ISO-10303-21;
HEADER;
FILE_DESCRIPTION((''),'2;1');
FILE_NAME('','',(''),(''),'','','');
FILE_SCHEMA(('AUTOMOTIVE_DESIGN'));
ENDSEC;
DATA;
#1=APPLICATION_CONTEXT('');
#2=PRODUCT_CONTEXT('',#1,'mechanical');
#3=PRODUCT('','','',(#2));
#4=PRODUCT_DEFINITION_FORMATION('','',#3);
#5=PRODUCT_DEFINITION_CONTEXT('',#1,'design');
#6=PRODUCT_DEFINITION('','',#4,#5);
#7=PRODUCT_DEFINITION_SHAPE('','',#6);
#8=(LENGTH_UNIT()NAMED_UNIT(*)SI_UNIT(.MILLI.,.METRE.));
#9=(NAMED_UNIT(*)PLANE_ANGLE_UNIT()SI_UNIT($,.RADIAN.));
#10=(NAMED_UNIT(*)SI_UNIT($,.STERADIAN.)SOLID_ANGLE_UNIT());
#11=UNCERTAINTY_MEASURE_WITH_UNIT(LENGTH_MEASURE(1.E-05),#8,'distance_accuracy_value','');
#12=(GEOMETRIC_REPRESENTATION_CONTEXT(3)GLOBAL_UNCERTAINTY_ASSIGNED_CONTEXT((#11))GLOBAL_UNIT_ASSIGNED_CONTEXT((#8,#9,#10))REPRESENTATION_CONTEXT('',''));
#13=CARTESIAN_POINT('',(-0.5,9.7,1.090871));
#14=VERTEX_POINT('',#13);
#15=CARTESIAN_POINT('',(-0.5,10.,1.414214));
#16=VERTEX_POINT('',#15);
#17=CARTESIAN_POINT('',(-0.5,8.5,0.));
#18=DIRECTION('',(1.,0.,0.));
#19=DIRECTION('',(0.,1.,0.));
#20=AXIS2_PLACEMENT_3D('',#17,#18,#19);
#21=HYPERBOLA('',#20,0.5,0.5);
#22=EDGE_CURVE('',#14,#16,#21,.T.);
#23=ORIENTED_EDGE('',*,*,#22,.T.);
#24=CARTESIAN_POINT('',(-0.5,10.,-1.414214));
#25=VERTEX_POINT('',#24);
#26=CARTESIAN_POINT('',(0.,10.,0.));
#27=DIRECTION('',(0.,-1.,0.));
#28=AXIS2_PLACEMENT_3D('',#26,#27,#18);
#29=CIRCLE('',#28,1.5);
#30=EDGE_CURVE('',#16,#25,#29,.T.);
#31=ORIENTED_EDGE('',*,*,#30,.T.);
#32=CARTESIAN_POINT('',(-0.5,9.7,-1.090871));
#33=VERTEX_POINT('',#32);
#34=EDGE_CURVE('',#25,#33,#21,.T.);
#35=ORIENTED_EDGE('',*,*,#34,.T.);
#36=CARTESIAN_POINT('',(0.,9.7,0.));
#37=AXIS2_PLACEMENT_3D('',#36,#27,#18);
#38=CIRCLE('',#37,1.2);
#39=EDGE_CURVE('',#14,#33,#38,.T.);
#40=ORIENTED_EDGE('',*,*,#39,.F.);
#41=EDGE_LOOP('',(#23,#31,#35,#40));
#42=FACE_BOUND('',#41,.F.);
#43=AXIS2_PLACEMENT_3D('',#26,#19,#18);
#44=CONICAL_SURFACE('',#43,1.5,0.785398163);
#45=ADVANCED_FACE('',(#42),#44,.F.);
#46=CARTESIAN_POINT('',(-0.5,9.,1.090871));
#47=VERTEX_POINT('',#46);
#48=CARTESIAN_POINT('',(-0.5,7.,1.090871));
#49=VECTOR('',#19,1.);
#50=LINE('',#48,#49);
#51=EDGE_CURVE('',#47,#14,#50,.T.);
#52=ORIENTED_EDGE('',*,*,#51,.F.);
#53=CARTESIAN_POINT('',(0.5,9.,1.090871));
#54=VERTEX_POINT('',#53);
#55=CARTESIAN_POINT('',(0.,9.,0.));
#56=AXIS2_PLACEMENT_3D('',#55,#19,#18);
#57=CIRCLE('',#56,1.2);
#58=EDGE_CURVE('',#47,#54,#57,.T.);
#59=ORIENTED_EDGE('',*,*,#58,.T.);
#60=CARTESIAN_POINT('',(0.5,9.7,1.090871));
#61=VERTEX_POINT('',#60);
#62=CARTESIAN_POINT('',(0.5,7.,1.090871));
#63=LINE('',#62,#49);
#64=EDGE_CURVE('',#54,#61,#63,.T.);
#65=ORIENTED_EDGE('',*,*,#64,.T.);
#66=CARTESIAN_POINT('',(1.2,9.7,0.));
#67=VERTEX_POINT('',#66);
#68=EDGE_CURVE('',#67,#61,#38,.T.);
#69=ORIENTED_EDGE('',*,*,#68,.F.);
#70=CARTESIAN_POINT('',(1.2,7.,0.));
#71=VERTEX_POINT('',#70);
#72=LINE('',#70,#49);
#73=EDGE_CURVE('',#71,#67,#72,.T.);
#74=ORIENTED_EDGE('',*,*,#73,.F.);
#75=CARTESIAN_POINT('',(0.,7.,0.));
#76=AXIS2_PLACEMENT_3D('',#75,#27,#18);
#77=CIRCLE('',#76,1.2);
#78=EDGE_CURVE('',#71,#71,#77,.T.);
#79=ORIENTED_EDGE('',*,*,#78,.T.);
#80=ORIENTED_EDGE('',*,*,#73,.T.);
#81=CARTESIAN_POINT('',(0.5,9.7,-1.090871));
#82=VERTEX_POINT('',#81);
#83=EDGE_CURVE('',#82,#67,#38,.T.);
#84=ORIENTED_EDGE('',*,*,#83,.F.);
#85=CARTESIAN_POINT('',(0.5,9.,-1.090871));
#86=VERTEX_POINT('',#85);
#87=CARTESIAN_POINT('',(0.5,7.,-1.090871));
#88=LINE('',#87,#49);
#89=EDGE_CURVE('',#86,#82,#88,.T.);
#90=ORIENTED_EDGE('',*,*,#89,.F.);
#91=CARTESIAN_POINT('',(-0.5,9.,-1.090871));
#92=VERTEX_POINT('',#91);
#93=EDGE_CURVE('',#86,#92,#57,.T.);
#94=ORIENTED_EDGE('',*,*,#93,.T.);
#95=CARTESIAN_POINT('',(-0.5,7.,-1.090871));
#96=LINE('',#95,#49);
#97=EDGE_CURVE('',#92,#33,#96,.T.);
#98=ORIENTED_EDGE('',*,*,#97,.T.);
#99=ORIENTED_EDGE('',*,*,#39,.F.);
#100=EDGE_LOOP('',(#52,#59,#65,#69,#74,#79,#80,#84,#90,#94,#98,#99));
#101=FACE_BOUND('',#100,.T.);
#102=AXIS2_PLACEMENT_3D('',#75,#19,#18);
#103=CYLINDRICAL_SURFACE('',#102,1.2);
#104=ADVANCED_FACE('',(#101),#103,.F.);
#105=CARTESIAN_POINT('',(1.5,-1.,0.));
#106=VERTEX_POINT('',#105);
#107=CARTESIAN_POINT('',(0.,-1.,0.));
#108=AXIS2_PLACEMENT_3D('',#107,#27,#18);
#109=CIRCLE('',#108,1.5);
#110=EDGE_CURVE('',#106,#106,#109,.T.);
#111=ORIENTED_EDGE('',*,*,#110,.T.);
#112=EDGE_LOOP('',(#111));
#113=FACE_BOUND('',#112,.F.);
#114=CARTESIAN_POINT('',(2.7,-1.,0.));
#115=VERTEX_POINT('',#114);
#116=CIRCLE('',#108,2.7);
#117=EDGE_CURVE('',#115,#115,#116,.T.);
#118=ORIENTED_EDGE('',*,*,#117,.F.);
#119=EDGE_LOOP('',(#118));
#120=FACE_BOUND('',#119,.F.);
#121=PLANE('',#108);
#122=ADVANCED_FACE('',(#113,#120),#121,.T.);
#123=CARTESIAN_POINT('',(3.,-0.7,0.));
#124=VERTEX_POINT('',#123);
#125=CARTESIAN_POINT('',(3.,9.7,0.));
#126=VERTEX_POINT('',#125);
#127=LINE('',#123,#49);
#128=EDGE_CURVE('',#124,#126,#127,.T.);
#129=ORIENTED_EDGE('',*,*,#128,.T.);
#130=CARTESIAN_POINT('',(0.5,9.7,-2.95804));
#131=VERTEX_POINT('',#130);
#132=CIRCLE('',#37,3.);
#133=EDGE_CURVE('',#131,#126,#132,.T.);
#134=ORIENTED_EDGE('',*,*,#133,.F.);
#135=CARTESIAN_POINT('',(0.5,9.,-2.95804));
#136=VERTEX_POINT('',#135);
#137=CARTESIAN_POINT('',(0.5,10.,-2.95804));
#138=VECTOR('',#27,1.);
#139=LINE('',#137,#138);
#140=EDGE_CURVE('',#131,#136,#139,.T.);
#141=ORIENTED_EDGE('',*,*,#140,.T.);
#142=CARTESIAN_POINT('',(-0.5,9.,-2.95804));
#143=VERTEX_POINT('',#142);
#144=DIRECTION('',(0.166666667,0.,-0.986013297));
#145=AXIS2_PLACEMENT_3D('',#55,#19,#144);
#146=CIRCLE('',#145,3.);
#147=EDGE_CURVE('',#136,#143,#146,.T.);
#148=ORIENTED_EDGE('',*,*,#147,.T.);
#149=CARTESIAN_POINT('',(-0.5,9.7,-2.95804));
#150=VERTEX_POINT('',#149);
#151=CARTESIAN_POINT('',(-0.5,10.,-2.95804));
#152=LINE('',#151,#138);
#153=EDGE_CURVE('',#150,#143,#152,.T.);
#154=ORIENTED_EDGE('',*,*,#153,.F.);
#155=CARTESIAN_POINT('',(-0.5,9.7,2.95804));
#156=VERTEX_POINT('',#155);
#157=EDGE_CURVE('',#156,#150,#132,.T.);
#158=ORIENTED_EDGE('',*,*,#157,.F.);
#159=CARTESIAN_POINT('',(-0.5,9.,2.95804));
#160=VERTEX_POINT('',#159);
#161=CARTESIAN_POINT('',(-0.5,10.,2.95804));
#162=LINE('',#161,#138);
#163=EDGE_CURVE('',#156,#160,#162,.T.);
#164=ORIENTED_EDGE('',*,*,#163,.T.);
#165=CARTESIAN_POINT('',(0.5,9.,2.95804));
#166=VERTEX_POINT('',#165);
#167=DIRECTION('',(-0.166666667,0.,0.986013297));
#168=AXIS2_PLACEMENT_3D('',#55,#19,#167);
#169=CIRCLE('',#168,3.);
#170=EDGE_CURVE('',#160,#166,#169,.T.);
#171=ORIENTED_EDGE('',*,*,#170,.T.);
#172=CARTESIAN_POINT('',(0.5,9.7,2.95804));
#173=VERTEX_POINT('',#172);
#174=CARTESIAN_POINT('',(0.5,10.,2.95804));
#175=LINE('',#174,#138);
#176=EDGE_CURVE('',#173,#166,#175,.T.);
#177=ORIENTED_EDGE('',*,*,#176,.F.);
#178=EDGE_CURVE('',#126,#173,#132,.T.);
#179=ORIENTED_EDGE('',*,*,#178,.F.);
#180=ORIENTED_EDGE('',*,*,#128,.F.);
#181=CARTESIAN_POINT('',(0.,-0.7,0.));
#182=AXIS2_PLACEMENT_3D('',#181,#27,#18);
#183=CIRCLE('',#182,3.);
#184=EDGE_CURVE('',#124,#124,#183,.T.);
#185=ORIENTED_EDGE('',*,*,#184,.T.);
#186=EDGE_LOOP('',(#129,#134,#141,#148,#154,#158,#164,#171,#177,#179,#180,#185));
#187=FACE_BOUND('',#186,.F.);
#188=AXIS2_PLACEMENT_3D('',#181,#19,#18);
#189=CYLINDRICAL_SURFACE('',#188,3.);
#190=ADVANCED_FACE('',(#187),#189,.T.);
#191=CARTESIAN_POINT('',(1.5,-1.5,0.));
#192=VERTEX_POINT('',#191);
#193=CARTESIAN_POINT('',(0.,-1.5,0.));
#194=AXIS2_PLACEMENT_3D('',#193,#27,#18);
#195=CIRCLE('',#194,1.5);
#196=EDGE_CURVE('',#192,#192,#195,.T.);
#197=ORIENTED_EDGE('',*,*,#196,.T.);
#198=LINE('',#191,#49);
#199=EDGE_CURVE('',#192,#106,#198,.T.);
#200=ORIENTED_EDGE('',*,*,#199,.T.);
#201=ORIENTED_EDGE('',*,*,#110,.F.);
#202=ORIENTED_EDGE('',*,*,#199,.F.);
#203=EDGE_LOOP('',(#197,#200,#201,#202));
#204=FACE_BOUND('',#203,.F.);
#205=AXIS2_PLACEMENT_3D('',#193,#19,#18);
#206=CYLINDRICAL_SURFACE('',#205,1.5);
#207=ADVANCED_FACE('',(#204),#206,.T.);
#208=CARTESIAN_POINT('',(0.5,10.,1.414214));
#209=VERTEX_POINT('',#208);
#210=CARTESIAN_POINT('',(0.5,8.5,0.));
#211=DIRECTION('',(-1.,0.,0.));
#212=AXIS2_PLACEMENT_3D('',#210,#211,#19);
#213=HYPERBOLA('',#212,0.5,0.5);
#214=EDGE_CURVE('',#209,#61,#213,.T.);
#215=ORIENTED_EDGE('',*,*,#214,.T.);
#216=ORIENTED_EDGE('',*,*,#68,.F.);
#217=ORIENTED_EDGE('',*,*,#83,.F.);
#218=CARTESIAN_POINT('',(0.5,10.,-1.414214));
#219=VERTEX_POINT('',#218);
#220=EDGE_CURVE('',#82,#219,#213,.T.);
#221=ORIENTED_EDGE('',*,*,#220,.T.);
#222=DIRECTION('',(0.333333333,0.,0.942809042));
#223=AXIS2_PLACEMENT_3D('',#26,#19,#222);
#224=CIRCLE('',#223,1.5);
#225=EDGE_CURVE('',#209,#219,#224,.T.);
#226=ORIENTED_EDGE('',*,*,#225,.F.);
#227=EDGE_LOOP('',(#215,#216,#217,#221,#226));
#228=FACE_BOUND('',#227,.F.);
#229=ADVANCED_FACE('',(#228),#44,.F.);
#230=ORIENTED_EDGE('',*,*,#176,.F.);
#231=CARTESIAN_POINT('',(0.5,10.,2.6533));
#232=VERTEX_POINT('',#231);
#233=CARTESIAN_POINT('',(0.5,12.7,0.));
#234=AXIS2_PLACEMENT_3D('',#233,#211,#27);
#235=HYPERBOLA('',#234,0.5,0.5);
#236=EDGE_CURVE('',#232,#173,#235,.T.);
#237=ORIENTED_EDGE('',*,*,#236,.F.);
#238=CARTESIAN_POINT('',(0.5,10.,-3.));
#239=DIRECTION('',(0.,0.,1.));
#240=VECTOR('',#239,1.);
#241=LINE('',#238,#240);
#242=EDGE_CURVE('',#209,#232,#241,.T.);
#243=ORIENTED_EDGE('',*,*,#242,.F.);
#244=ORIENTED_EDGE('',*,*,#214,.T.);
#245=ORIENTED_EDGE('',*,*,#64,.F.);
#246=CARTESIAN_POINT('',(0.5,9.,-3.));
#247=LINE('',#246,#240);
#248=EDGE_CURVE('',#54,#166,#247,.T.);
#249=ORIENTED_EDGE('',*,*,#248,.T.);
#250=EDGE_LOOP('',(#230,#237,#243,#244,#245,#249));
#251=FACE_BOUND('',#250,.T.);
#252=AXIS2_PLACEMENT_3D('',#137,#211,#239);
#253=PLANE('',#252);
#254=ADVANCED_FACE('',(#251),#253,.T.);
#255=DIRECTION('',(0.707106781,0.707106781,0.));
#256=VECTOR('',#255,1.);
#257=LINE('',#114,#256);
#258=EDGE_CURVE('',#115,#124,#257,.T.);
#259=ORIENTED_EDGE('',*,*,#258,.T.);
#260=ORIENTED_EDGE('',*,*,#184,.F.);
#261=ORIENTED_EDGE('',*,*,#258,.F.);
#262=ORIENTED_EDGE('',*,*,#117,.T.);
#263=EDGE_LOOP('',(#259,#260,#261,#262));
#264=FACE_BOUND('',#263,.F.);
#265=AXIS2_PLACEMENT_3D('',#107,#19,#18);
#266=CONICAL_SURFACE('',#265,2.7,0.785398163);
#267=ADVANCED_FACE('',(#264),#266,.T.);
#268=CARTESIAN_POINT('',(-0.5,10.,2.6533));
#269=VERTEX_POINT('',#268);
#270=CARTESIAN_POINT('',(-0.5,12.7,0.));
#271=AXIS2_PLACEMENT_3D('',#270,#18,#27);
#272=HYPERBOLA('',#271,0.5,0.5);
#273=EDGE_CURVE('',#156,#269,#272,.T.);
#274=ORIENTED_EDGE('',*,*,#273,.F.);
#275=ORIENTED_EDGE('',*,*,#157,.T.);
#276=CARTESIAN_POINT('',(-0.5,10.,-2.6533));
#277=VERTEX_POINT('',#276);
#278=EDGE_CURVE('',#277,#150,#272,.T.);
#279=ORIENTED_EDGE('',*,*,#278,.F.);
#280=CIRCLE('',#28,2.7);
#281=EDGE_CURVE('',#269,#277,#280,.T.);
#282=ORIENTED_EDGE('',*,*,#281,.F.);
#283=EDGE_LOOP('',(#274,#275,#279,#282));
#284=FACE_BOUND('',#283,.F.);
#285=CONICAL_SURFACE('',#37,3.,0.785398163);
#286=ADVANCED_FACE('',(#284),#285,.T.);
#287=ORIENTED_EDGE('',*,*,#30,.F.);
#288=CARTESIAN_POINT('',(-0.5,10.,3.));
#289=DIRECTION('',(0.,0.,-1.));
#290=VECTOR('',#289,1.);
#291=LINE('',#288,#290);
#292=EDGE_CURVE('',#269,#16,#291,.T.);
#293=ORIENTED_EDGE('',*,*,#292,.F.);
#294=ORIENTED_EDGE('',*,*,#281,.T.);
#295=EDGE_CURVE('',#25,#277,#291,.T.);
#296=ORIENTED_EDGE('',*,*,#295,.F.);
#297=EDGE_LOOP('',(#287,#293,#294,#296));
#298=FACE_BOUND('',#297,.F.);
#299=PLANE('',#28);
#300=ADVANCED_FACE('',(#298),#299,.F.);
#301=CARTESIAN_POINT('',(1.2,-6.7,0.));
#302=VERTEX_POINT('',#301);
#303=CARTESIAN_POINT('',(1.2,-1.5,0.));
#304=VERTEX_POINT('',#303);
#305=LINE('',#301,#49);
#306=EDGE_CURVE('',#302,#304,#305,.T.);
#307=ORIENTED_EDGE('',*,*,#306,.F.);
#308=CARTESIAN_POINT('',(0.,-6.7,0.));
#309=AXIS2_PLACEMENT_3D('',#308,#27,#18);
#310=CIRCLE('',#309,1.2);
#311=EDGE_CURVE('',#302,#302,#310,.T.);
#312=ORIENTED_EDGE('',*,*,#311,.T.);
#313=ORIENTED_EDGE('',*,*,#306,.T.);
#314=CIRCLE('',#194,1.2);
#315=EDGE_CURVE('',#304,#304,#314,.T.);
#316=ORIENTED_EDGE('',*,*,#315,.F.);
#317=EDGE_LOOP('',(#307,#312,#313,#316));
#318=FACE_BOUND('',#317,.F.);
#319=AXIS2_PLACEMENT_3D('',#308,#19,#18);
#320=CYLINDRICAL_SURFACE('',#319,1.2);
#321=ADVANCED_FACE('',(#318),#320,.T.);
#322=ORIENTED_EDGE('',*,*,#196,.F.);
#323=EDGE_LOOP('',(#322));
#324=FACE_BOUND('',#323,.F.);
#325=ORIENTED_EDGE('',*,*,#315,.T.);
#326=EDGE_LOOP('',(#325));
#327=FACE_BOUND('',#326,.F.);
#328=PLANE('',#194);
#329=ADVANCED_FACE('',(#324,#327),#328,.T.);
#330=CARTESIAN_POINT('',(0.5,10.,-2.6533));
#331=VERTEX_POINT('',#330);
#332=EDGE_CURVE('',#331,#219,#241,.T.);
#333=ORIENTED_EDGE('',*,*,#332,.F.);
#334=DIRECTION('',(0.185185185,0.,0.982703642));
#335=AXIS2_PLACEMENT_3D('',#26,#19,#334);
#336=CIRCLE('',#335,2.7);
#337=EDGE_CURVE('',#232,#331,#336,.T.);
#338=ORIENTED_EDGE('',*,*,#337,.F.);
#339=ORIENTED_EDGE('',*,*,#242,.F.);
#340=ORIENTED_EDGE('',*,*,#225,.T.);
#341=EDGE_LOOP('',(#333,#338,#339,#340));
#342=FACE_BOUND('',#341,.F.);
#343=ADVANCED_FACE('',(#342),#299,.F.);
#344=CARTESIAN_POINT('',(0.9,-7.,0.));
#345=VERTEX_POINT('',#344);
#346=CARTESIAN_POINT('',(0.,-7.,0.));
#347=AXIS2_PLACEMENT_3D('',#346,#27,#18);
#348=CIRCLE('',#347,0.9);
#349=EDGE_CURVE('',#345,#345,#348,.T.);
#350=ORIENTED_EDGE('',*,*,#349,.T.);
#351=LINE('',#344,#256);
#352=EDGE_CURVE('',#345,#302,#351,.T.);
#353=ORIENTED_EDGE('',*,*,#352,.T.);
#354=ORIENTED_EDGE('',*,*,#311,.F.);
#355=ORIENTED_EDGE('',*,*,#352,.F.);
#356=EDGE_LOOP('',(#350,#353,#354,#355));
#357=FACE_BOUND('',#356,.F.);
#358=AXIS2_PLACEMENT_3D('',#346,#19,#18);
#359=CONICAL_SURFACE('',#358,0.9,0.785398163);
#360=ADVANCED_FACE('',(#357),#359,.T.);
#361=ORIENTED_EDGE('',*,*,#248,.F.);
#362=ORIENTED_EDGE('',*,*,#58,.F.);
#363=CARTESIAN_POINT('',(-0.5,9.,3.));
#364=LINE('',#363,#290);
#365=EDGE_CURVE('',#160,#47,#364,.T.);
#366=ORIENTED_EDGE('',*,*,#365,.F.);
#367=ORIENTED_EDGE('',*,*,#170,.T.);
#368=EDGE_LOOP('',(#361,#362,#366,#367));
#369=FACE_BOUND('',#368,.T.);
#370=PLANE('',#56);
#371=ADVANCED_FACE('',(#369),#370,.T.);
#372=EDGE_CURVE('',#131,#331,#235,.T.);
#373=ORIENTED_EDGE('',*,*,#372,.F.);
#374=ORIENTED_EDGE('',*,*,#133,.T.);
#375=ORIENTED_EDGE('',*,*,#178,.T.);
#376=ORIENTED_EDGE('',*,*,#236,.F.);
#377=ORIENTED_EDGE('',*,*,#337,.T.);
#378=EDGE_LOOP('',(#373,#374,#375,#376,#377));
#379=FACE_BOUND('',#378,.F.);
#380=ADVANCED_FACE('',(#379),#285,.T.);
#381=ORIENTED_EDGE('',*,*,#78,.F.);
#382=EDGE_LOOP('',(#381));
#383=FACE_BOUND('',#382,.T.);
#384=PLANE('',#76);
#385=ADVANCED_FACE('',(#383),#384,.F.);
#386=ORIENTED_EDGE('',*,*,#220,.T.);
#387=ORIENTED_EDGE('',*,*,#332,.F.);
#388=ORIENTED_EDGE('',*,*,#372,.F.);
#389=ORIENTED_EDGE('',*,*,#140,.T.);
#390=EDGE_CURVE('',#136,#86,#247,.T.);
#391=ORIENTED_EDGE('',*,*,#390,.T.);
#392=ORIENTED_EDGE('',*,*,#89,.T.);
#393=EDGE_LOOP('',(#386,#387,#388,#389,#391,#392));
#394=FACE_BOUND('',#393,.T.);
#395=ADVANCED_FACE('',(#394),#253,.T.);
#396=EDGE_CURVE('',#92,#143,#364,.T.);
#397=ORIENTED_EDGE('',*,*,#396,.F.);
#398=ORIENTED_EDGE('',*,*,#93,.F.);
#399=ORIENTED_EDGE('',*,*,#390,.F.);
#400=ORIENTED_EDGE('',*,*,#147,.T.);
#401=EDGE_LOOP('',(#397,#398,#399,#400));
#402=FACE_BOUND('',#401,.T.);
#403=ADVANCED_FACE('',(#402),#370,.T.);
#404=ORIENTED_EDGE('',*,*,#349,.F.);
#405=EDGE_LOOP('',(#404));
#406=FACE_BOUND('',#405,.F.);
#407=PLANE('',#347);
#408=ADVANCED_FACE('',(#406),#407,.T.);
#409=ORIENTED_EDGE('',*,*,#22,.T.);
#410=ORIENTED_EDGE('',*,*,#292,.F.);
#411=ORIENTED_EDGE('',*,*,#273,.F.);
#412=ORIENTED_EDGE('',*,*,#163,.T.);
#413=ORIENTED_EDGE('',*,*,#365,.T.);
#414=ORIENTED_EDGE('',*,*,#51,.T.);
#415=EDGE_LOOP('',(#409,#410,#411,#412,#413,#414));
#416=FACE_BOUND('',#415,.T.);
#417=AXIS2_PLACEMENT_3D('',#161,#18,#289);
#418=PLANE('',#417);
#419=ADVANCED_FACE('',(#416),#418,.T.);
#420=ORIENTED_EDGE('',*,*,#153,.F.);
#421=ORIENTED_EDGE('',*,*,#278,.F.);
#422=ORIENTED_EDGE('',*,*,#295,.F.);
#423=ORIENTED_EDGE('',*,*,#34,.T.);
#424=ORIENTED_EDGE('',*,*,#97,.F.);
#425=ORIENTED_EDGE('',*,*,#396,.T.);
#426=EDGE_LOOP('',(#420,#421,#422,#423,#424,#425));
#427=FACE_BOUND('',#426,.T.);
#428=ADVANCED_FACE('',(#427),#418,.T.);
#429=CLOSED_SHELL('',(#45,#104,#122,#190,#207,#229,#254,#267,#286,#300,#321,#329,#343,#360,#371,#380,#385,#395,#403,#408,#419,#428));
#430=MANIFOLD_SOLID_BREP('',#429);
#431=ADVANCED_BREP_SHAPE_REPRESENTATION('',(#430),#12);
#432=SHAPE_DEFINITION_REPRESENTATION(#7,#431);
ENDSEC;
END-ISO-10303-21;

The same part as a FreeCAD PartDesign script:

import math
import FreeCAD as App
import Part
import Sketcher
from FreeCAD import Vector
Q = App.Units.Quantity


def add_polygon(sketch, points):
    """Adds a closed chain of lines whose ends are joined by coincident constraints."""
    first, n = sketch.GeometryCount, len(points)
    for a, b in zip(points, points[1:] + points[:1]):
        sketch.addGeometry(Part.LineSegment(App.Vector(*a, 0), App.Vector(*b, 0)), False)
    for i in range(n):
        sketch.addConstraint(Sketcher.Constraint("Coincident", first + i, 2, first + (i + 1) % n, 1))

doc = App.newDocument("Part")
body = doc.addObject("PartDesign::Body", "Body")

# Sketch on XY plane
sketch1 = doc.addObject("Sketcher::SketchObject", "Sketch")
body.addObject(sketch1)
sketch1.AttachmentSupport = (doc.XY_Plane, [""])
sketch1.MapMode = "FlatFace"
add_polygon(sketch1, [(0, 7), (0, -7), (0.9, -7), (1.2, -6.7), (1.2, -1.5), (1.5, -1.5), (1.5, -1), (2.7, -1), (3, -0.7), (3, 9.7), (2.7, 10), (1.5, 10), (1.2, 9.7), (1.2, 7)])  # lines 0-13
sketch1.addConstraint([
    Sketcher.Constraint("Vertical", 0),
    Sketcher.Constraint("Horizontal", 1),
    Sketcher.Constraint("Vertical", 3),
    Sketcher.Constraint("Horizontal", 4),
    Sketcher.Constraint("Vertical", 5),
    Sketcher.Constraint("Horizontal", 6),
    Sketcher.Constraint("Vertical", 8),
    Sketcher.Constraint("Horizontal", 10),
    Sketcher.Constraint("Vertical", 12),
    Sketcher.Constraint("Horizontal", 13),
    Sketcher.Constraint("Symmetric", 0, 2, 13, 2, -1, 1),
    Sketcher.Constraint("Parallel", 2, 7),
    Sketcher.Constraint("Perpendicular", 7, 9),
    Sketcher.Constraint("Perpendicular", 9, 11),
    Sketcher.Constraint("Horizontal", 8, 2, 11, 2),
    Sketcher.Constraint("Vertical", 6, 2, 9, 2),
    Sketcher.Constraint("Vertical", 5, 2, 10, 2),
    Sketcher.Constraint("Vertical", 3, 2, 11, 2),
    Sketcher.Constraint("Equal", 10, 13),
    Sketcher.Constraint("Equal", 2, 7),
    Sketcher.Constraint("Equal", 7, 9),
    Sketcher.Constraint("DistanceX", 4, 1, 4, 2, Q("0.3 mm")),
    Sketcher.Constraint("DistanceY", 5, 1, 5, 2, Q("0.5 mm")),
    Sketcher.Constraint("DistanceX", -1, 1, 7, 2, Q("3 mm")),
    Sketcher.Constraint("DistanceY", 1, 2, 5, 2, Q("6 mm")),
    Sketcher.Constraint("DistanceY", 6, 2, 9, 2, Q("11 mm")),
    Sketcher.Constraint("DistanceY", 12, 2, 10, 2, Q("3 mm")),
])
revolution = doc.addObject("PartDesign::Revolution", "Revolution")
body.addObject(revolution)
revolution.Profile = sketch1
revolution.ReferenceAxis = (sketch1, ["V_Axis"])
revolution.Angle = 360

# Sketch on XZ plane
sketch2 = doc.addObject("Sketcher::SketchObject", "Sketch001")
body.addObject(sketch2)
sketch2.AttachmentSupport = (doc.XZ_Plane, [""])
sketch2.MapMode = "FlatFace"
sketch2.AttachmentOffset = App.Placement(Vector(0, 0, -10), App.Rotation())
sketch2.addGeometry([
    Part.ArcOfCircle(Part.Circle(Vector(0, 0, 0), Vector(0, 0, 1), 3), math.radians(-99.59), math.radians(-80.41)),
    Part.LineSegment(Vector(-0.5, -3, 0), Vector(-0.5, 3, 0)),
    Part.ArcOfCircle(Part.Circle(Vector(0, 0, 0), Vector(0, 0, 1), 3), math.radians(80.41), math.radians(99.59)),
    Part.LineSegment(Vector(0.5, 3, 0), Vector(0.5, -3, 0)),
], False)
sketch2.addConstraint([
    Sketcher.Constraint("Coincident", 0, 1, 1, 1),
    Sketcher.Constraint("Coincident", 1, 2, 2, 2),
    Sketcher.Constraint("Coincident", 2, 1, 3, 1),
    Sketcher.Constraint("Coincident", 3, 2, 0, 2),
    Sketcher.Constraint("Vertical", 1),
    Sketcher.Constraint("Vertical", 3),
    Sketcher.Constraint("Coincident", 0, 3, -1, 1),
    Sketcher.Constraint("Coincident", 2, 3, -1, 1),
    Sketcher.Constraint("Equal", 0, 2),
    Sketcher.Constraint("Horizontal", 1, 2, 2, 1),
    Sketcher.Constraint("Radius", 0, Q("3 mm")),
    Sketcher.Constraint("DistanceX", 1, 2, 2, 1, Q("1 mm")),
])
pocket1 = doc.addObject("PartDesign::Pocket", "Pocket")
body.addObject(pocket1)
pocket1.Profile = sketch2
pocket1.Length = 1
pocket1.Reversed = True

doc.recompute()
